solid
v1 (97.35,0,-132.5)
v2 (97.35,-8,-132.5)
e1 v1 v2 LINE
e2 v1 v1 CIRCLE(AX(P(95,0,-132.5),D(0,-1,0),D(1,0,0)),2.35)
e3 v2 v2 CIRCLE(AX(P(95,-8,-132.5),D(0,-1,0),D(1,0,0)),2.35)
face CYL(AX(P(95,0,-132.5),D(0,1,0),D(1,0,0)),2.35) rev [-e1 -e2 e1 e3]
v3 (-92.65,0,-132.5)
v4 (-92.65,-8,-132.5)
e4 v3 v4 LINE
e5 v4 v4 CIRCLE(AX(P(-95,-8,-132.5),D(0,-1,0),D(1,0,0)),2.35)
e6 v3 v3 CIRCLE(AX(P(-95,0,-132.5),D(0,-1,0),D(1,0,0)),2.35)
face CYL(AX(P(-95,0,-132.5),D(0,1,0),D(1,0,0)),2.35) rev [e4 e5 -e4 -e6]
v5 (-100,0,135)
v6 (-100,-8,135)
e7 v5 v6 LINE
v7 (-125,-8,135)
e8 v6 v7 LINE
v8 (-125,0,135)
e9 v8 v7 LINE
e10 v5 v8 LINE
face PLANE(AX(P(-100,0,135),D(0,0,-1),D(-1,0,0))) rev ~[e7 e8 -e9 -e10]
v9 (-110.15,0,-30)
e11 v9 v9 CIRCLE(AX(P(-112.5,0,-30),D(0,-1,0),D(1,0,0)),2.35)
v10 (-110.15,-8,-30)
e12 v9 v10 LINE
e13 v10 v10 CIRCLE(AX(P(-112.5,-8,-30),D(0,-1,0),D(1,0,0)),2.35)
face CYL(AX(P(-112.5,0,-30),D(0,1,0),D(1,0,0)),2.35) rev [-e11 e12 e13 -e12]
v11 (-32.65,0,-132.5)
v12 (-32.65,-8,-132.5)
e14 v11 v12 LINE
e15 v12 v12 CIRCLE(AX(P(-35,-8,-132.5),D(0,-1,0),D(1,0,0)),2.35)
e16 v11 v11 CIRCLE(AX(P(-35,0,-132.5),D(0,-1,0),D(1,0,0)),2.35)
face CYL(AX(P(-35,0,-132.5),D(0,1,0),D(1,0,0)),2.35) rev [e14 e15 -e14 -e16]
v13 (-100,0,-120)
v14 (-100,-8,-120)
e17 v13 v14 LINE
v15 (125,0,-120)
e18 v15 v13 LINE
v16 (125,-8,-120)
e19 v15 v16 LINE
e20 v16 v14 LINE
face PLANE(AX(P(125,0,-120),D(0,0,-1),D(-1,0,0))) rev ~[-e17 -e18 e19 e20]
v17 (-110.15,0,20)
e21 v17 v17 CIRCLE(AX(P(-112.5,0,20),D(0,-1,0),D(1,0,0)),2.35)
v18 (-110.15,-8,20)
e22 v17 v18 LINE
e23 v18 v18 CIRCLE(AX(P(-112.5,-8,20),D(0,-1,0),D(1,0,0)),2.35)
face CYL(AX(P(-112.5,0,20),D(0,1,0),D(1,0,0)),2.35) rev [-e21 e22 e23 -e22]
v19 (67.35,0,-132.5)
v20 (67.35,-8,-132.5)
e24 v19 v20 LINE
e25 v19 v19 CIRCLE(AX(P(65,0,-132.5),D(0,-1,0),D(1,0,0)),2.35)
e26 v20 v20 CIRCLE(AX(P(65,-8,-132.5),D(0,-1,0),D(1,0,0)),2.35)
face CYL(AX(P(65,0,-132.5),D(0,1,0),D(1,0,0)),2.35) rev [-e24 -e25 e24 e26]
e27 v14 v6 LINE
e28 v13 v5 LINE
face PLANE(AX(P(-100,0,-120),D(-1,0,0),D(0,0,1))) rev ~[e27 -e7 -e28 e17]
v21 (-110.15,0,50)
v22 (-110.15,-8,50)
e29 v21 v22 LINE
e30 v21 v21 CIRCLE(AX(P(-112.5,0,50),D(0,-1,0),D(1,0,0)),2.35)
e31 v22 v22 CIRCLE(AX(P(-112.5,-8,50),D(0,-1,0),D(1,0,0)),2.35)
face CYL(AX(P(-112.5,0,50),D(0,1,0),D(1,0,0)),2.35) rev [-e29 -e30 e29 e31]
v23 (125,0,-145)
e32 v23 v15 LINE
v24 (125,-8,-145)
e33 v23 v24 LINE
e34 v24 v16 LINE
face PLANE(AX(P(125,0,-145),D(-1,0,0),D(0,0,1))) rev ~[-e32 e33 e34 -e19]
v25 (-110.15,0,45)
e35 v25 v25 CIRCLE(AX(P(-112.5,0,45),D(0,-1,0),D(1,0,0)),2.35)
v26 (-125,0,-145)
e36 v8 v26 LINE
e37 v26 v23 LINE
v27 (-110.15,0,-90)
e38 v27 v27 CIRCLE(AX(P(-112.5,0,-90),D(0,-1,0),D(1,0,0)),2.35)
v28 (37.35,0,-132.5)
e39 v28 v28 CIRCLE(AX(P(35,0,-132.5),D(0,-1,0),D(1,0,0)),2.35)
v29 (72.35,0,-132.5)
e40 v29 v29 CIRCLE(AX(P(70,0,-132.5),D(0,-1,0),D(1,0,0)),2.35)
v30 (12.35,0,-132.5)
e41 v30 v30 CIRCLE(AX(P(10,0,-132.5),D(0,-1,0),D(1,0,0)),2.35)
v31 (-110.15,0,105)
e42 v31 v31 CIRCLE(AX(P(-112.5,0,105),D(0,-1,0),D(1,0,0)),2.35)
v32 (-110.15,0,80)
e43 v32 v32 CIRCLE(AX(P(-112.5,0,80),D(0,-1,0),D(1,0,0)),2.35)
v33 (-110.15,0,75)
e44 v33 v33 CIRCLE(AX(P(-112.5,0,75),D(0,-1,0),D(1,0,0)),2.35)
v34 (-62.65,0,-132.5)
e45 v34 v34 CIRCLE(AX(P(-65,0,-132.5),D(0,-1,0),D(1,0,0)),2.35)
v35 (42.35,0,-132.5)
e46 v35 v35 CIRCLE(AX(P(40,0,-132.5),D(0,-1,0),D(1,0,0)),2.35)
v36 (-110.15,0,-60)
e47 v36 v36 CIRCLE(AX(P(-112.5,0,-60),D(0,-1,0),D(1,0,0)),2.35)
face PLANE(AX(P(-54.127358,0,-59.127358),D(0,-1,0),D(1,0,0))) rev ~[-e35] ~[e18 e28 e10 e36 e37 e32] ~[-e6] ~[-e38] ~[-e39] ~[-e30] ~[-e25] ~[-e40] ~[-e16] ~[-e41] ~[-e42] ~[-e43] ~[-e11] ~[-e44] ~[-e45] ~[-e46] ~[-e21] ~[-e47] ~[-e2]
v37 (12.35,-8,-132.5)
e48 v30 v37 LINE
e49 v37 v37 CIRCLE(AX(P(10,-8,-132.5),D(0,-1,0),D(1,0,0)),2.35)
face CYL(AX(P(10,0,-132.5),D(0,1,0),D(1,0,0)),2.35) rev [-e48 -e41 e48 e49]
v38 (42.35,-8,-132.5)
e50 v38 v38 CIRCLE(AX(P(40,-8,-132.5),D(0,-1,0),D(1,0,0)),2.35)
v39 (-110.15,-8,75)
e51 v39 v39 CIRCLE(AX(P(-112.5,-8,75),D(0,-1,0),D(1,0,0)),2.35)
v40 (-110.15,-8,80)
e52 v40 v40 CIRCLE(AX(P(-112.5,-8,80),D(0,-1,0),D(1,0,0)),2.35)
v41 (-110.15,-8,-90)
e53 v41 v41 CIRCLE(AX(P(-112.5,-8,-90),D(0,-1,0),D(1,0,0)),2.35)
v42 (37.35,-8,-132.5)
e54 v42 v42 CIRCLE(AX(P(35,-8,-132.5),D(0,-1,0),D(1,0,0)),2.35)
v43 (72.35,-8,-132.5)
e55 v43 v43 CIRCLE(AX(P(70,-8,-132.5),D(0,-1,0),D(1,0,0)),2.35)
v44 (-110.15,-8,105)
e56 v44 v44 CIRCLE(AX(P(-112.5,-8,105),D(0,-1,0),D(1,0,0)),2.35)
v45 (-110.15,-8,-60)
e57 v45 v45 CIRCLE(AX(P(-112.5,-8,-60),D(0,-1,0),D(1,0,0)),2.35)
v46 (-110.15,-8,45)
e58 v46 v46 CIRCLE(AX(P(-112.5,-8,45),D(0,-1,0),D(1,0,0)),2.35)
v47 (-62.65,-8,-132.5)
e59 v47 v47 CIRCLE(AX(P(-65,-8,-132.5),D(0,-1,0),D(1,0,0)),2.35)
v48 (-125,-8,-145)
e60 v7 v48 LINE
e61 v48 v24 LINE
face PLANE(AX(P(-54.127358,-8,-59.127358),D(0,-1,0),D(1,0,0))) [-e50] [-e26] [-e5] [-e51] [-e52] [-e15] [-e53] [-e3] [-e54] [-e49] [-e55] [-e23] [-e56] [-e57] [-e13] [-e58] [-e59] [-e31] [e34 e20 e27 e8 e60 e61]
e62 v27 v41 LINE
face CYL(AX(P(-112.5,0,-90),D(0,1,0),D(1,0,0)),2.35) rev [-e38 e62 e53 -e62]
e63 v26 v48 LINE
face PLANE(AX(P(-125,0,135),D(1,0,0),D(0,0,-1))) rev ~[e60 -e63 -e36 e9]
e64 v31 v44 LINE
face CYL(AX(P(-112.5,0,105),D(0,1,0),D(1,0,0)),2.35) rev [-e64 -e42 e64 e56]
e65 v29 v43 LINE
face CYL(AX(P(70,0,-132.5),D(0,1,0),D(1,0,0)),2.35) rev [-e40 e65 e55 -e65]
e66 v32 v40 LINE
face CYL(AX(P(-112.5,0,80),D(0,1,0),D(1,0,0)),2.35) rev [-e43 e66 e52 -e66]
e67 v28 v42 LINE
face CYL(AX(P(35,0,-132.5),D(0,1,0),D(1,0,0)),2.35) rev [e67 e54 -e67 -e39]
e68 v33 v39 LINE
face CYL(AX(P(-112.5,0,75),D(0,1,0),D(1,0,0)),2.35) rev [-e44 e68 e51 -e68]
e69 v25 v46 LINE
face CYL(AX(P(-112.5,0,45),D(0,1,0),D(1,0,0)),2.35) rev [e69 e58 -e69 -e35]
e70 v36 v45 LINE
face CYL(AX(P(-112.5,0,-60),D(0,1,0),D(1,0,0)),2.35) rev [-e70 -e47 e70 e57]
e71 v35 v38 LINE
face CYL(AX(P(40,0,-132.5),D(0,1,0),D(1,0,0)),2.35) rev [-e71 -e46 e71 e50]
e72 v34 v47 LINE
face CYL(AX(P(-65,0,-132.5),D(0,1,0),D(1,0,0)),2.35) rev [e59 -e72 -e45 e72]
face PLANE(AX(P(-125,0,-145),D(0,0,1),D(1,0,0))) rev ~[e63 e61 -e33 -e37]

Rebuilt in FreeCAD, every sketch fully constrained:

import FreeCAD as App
import Part
import Sketcher

doc = App.newDocument("Part")
body = doc.addObject("PartDesign::Body", "Body")

sketch1 = doc.addObject("Sketcher::SketchObject", "Sketch")
body.addObject(sketch1)
sketch1.AttachmentSupport = (doc.XZ_Plane, [""])
sketch1.MapMode = "FlatFace"
sketch1.addGeometry([
    Part.LineSegment(App.Vector(-125, 135, 0), App.Vector(-125, -145, 0)),
    Part.LineSegment(App.Vector(-125, -145, 0), App.Vector(125, -145, 0)),
    Part.LineSegment(App.Vector(125, -145, 0), App.Vector(125, -120, 0)),
    Part.LineSegment(App.Vector(125, -120, 0), App.Vector(-100, -120, 0)),
    Part.LineSegment(App.Vector(-100, -120, 0), App.Vector(-100, 135, 0)),
    Part.LineSegment(App.Vector(-100, 135, 0), App.Vector(-125, 135, 0)),
    Part.Circle(App.Vector(-95, -132.5, 0), App.Vector(0, 0, 1), 2.4),
    Part.Circle(App.Vector(-65, -132.5, 0), App.Vector(0, 0, 1), 2.4),
    Part.Circle(App.Vector(-112.5, -90, 0), App.Vector(0, 0, 1), 2.4),
    Part.Circle(App.Vector(-35, -132.5, 0), App.Vector(0, 0, 1), 2.4),
    Part.Circle(App.Vector(-112.5, -60, 0), App.Vector(0, 0, 1), 2.4),
    Part.Circle(App.Vector(-112.5, -30, 0), App.Vector(0, 0, 1), 2.4),
    Part.Circle(App.Vector(10, -132.5, 0), App.Vector(0, 0, 1), 2.4),
    Part.Circle(App.Vector(35, -132.5, 0), App.Vector(0, 0, 1), 2.4),
    Part.Circle(App.Vector(40, -132.5, 0), App.Vector(0, 0, 1), 2.4),
    Part.Circle(App.Vector(65, -132.5, 0), App.Vector(0, 0, 1), 2.4),
    Part.Circle(App.Vector(70, -132.5, 0), App.Vector(0, 0, 1), 2.4),
    Part.Circle(App.Vector(95, -132.5, 0), App.Vector(0, 0, 1), 2.4),
    Part.Circle(App.Vector(-112.5, 20, 0), App.Vector(0, 0, 1), 2.4),
    Part.Circle(App.Vector(-112.5, 45, 0), App.Vector(0, 0, 1), 2.4),
    Part.Circle(App.Vector(-112.5, 50, 0), App.Vector(0, 0, 1), 2.4),
    Part.Circle(App.Vector(-112.5, 75, 0), App.Vector(0, 0, 1), 2.4),
    Part.Circle(App.Vector(-112.5, 80, 0), App.Vector(0, 0, 1), 2.4),
    Part.Circle(App.Vector(-112.5, 105, 0), App.Vector(0, 0, 1), 2.4),
], False)
sketch1.addConstraint([
    Sketcher.Constraint("Coincident", 0, 2, 1, 1),
    Sketcher.Constraint("Coincident", 1, 2, 2, 1),
    Sketcher.Constraint("Coincident", 2, 2, 3, 1),
    Sketcher.Constraint("Coincident", 3, 2, 4, 1),
    Sketcher.Constraint("Coincident", 4, 2, 5, 1),
    Sketcher.Constraint("Coincident", 5, 2, 0, 1),
    Sketcher.Constraint("Vertical", 0),
    Sketcher.Constraint("Horizontal", 1),
    Sketcher.Constraint("Vertical", 2),
    Sketcher.Constraint("Horizontal", 3),
    Sketcher.Constraint("Vertical", 4),
    Sketcher.Constraint("Horizontal", 5),
    Sketcher.Constraint("Equal", 6, 7),
    Sketcher.Constraint("Equal", 7, 8),
    Sketcher.Constraint("Equal", 8, 9),
    Sketcher.Constraint("Equal", 9, 10),
    Sketcher.Constraint("Equal", 10, 11),
    Sketcher.Constraint("Equal", 11, 12),
    Sketcher.Constraint("Equal", 12, 13),
    Sketcher.Constraint("Equal", 13, 14),
    Sketcher.Constraint("Equal", 14, 15),
    Sketcher.Constraint("Equal", 15, 16),
    Sketcher.Constraint("Equal", 16, 17),
    Sketcher.Constraint("Equal", 17, 18),
    Sketcher.Constraint("Equal", 18, 19),
    Sketcher.Constraint("Equal", 19, 20),
    Sketcher.Constraint("Equal", 20, 21),
    Sketcher.Constraint("Equal", 21, 22),
    Sketcher.Constraint("Equal", 22, 23),
    Sketcher.Constraint("Symmetric", 9, 3, 13, 3, -2),
    Sketcher.Constraint("Symmetric", 7, 3, 15, 3, -2),
    Sketcher.Constraint("Symmetric", 6, 3, 17, 3, -2),
    Sketcher.Constraint("Horizontal", 6, 3, 7, 3),
    Sketcher.Constraint("Horizontal", 7, 3, 9, 3),
    Sketcher.Constraint("Horizontal", 9, 3, 12, 3),
    Sketcher.Constraint("Horizontal", 13, 3, 14, 3),
    Sketcher.Constraint("Horizontal", 15, 3, 16, 3),
    Sketcher.Constraint("Vertical", 8, 3, 10, 3),
    Sketcher.Constraint("Vertical", 10, 3, 11, 3),
    Sketcher.Constraint("Vertical", 11, 3, 18, 3),
    Sketcher.Constraint("Vertical", 18, 3, 19, 3),
    Sketcher.Constraint("Vertical", 19, 3, 20, 3),
    Sketcher.Constraint("Vertical", 20, 3, 21, 3),
    Sketcher.Constraint("Vertical", 21, 3, 22, 3),
    Sketcher.Constraint("Vertical", 22, 3, 23, 3),
    Sketcher.Constraint("Equal", 5, 2),
    Sketcher.Constraint("Diameter", 6, 4.7),
    Sketcher.Constraint("DistanceX", 1, 1, 1, 2, 250.0),
    Sketcher.Constraint("DistanceX", 3, 2, 3, 1, 225.0),
    Sketcher.Constraint("DistanceY", 0, 2, 0, 1, 280.0),
    Sketcher.Constraint("DistanceX", 6, 3, -1, 1, 95.0),
    Sketcher.Constraint("DistanceX", 7, 3, -1, 1, 65.0),
    Sketcher.Constraint("DistanceY", 8, 3, -1, 1, 90.0),
    Sketcher.Constraint("DistanceX", 9, 3, -1, 1, 35.0),
    Sketcher.Constraint("DistanceY", 10, 3, -1, 1, 60.0),
    Sketcher.Constraint("DistanceY", 11, 3, -1, 1, 30.0),
    Sketcher.Constraint("DistanceX", -1, 1, 12, 3, 10.0),
    Sketcher.Constraint("DistanceX", -1, 1, 14, 3, 40.0),
    Sketcher.Constraint("DistanceX", -1, 1, 16, 3, 70.0),
    Sketcher.Constraint("DistanceY", -1, 1, 18, 3, 20.0),
    Sketcher.Constraint("DistanceY", -1, 1, 19, 3, 45.0),
    Sketcher.Constraint("DistanceY", -1, 1, 20, 3, 50.0),
    Sketcher.Constraint("DistanceY", -1, 1, 21, 3, 75.0),
    Sketcher.Constraint("DistanceY", -1, 1, 22, 3, 80.0),
    Sketcher.Constraint("DistanceY", -1, 1, 23, 3, 105.0),
    Sketcher.Constraint("DistanceX", 0, 2, -1, 1, 125.0),
    Sketcher.Constraint("DistanceY", 0, 2, -1, 1, 145.0),
    Sketcher.Constraint("DistanceY", 6, 3, -1, 1, 132.5),
    Sketcher.Constraint("DistanceX", 8, 3, -1, 1, 112.5),
])
pad1 = doc.addObject("PartDesign::Pad", "Pad")
body.addObject(pad1)
pad1.Profile = sketch1
pad1.Length = 8

doc.recompute()
